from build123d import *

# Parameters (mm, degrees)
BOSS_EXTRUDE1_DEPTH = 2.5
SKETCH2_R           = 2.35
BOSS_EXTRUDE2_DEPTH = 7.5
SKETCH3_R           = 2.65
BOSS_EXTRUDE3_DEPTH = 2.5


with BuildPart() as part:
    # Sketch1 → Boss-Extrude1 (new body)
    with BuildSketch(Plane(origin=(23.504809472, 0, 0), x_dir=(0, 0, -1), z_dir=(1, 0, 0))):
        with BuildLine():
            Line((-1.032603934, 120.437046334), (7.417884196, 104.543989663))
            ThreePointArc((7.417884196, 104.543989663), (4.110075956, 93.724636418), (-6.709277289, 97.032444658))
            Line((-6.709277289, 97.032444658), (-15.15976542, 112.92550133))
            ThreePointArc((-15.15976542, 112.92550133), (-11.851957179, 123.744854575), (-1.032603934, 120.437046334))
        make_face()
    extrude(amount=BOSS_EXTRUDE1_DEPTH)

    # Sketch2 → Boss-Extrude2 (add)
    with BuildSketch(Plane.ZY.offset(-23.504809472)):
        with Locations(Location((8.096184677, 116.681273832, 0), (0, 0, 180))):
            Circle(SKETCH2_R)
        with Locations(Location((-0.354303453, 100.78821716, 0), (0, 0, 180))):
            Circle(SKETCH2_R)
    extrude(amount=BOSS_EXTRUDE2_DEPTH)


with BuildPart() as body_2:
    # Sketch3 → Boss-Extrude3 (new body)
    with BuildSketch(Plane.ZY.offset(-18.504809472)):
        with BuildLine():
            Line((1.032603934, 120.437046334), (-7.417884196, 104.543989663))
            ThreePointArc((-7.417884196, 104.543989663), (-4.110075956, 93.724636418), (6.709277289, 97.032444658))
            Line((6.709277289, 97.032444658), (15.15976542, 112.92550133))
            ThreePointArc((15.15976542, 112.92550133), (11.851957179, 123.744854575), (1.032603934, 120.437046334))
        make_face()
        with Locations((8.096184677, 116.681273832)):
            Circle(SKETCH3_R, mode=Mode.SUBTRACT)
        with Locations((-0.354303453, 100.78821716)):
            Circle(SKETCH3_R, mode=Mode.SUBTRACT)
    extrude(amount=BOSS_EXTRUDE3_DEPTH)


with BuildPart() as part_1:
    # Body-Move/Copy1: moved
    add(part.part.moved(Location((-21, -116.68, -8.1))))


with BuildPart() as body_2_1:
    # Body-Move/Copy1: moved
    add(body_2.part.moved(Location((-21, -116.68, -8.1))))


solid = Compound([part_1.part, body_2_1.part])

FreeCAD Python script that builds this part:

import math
import FreeCAD as App
import Part
import Sketcher
from FreeCAD import Vector
Q = App.Units.Quantity

doc = App.newDocument("Part")
params = doc.addObject("Spreadsheet::Sheet", "Params")
for row, (alias, value) in enumerate([
    ("sketch1_radius", "8 mm"),
    ("sketch1_length", "18 mm"),
    ("pad1_length", "2.5 mm"),
    ("sketch2_diameter", "4.7 mm"),
    ("pad2_length", "7.5 mm"),
    ("sketch3_radius", "8 mm"),
    ("sketch3_diameter", "5.3 mm"),
    ("sketch3_length", "18 mm"),
    ("pad3_length", "2.5 mm"),
], start=1):
    params.set(f"A{row}", alias)
    params.set(f"B{row}", "=" + value)
    params.setAlias(f"B{row}", alias)

body = doc.addObject("PartDesign::Body", "Body")

# Sketch on YZ plane
sketch1 = body.newObject("Sketcher::SketchObject", "Sketch")
sketch1.AttachmentSupport = (doc.getObject("YZ_Plane"), [""])
sketch1.MapMode = "FlatFace"
sketch1.AttachmentOffset = App.Placement(Vector(0, 0, 23.504809), App.Rotation())
sketch1.addGeometry(Part.LineSegment(Vector(105, -7, 0), Vector(120, 1, 0)), False)
sketch1.addGeometry(Part.ArcOfCircle(Part.Circle(Vector(117, 8, 0), Vector(0, 0, 1), 8), math.radians(-62), math.radians(118)), False)
sketch1.addGeometry(Part.LineSegment(Vector(113, 15, 0), Vector(97, 7, 0)), False)
sketch1.addGeometry(Part.ArcOfCircle(Part.Circle(Vector(101, 0, 0), Vector(0, 0, 1), 8), math.radians(118), math.radians(298)), False)
sketch1.addConstraint(Sketcher.Constraint("Tangent", 0, 2, 1, 1))
sketch1.addConstraint(Sketcher.Constraint("Tangent", 1, 2, 2, 1))
sketch1.addConstraint(Sketcher.Constraint("Tangent", 2, 2, 3, 1))
sketch1.addConstraint(Sketcher.Constraint("Tangent", 3, 2, 0, 1))
sketch1.addConstraint(Sketcher.Constraint("Equal", 1, 3))
sketch1.addConstraint(Sketcher.Constraint("Radius", 1, Q("8 mm")))
sketch1.addConstraint(Sketcher.Constraint("Angle", 0, Q("28 deg")))
sketch1.addConstraint(Sketcher.Constraint("Distance", 0, Q("18 mm")))
sketch1.addConstraint(Sketcher.Constraint("DistanceX", -1, 1, 1, 2, Q("112.925501 mm")))
sketch1.addConstraint(Sketcher.Constraint("DistanceY", -1, 1, 1, 3, Q("8.096185 mm")))
sketch1.setExpression("Constraints[5]", "Params.sketch1_radius")
sketch1.setExpression("Constraints[7]", "Params.sketch1_length")
pad1 = body.newObject("PartDesign::Pad", "Pad")
pad1.Profile = sketch1
pad1.setExpression("Length", "Params.pad1_length")

# Sketch on YZ plane
sketch2 = body.newObject("Sketcher::SketchObject", "Sketch001")
sketch2.AttachmentSupport = (doc.getObject("YZ_Plane"), [""])
sketch2.MapMode = "FlatFace"
sketch2.AttachmentOffset = App.Placement(Vector(0, 0, 23.504809), App.Rotation())
sketch2.addGeometry(Part.Circle(Vector(116.7, 8.1, 0), Vector(0, 0, 1), 2.4), False)
sketch2.addGeometry(Part.Circle(Vector(100.8, -0.4, 0), Vector(0, 0, 1), 2.4), False)
sketch2.addConstraint(Sketcher.Constraint("Equal", 0, 1))
sketch2.addConstraint(Sketcher.Constraint("Diameter", 0, Q("4.7 mm")))
sketch2.addConstraint(Sketcher.Constraint("DistanceY", 1, 3, 0, 3, Q("8.450488 mm")))
sketch2.addConstraint(Sketcher.Constraint("DistanceX", -1, 1, 0, 3, Q("116.681274 mm")))
sketch2.addConstraint(Sketcher.Constraint("DistanceY", -1, 1, 0, 3, Q("8.096185 mm")))
sketch2.addConstraint(Sketcher.Constraint("DistanceX", -1, 1, 1, 3, Q("100.788217 mm")))
sketch2.setExpression("Constraints[1]", "Params.sketch2_diameter")
pad2 = body.newObject("PartDesign::Pad", "Pad001")
pad2.Profile = sketch2
pad2.setExpression("Length", "Params.pad2_length")
pad2.Reversed = True
body2 = doc.addObject("PartDesign::Body", "Body001")

# Sketch on YZ plane
sketch3 = body2.newObject("Sketcher::SketchObject", "Sketch002")
sketch3.AttachmentSupport = (doc.getObject("YZ_Plane001"), [""])
sketch3.MapMode = "FlatFace"
sketch3.AttachmentOffset = App.Placement(Vector(0, 0, 18.504809), App.Rotation())
sketch3.addGeometry(Part.LineSegment(Vector(120.4, 1, 0), Vector(104.5, -7.4, 0)), False)
sketch3.addGeometry(Part.ArcOfCircle(Part.Circle(Vector(100.8, -0.4, 0), Vector(0, 0, 1), 8), math.radians(118), math.radians(298)), False)
sketch3.addGeometry(Part.LineSegment(Vector(97, 6.7, 0), Vector(112.9, 15.2, 0)), False)
sketch3.addGeometry(Part.ArcOfCircle(Part.Circle(Vector(116.7, 8.1, 0), Vector(0, 0, 1), 8), math.radians(-62), math.radians(118)), False)
sketch3.addGeometry(Part.Circle(Vector(100.8, -0.4, 0), Vector(0, 0, 1), 2.6), False)
sketch3.addGeometry(Part.Circle(Vector(116.7, 8.1, 0), Vector(0, 0, 1), 2.6), False)
sketch3.addConstraint(Sketcher.Constraint("Tangent", 0, 2, 1, 2))
sketch3.addConstraint(Sketcher.Constraint("Tangent", 1, 1, 2, 1))
sketch3.addConstraint(Sketcher.Constraint("Tangent", 2, 2, 3, 2))
sketch3.addConstraint(Sketcher.Constraint("Tangent", 3, 1, 0, 1))
sketch3.addConstraint(Sketcher.Constraint("Coincident", 4, 3, 1, 3))
sketch3.addConstraint(Sketcher.Constraint("Coincident", 5, 3, 3, 3))
sketch3.addConstraint(Sketcher.Constraint("Equal", 1, 3))
sketch3.addConstraint(Sketcher.Constraint("Equal", 4, 5))
sketch3.addConstraint(Sketcher.Constraint("Radius", 1, Q("8 mm")))
sketch3.addConstraint(Sketcher.Constraint("Diameter", 4, Q("5.3 mm")))
sketch3.addConstraint(Sketcher.Constraint("Angle", 0, Q("-152 deg")))
sketch3.addConstraint(Sketcher.Constraint("Distance", 0, Q("18 mm")))
sketch3.addConstraint(Sketcher.Constraint("DistanceX", -1, 1, 2, 2, Q("112.925501 mm")))
sketch3.addConstraint(Sketcher.Constraint("DistanceY", 1, 3, -1, 1, Q("0.354303 mm")))
sketch3.setExpression("Constraints[8]", "Params.sketch3_radius")
sketch3.setExpression("Constraints[9]", "Params.sketch3_diameter")
sketch3.setExpression("Constraints[11]", "Params.sketch3_length")
pad3 = body2.newObject("PartDesign::Pad", "Pad002")
pad3.Profile = sketch3
pad3.setExpression("Length", "Params.pad3_length")
pad3.Reversed = True
body3 = doc.addObject("PartDesign::Body", "Body002")
doc.recompute()

body.Placement = App.Placement(Vector(-21, -116.68, -8.1), App.Rotation(Vector(0, 0, 1), 0))
boolean = body3.newObject("PartDesign::Boolean", "Boolean")
boolean.Type = "Fuse"
boolean.addObjects([body])
body4 = doc.addObject("PartDesign::Body", "Body003")
doc.recompute()

body2.Placement = App.Placement(Vector(-21, -116.68, -8.1), App.Rotation(Vector(0, 0, 1), 0))
boolean2 = body4.newObject("PartDesign::Boolean", "Boolean001")
boolean2.Type = "Fuse"
boolean2.addObjects([body2])

doc.recompute()
